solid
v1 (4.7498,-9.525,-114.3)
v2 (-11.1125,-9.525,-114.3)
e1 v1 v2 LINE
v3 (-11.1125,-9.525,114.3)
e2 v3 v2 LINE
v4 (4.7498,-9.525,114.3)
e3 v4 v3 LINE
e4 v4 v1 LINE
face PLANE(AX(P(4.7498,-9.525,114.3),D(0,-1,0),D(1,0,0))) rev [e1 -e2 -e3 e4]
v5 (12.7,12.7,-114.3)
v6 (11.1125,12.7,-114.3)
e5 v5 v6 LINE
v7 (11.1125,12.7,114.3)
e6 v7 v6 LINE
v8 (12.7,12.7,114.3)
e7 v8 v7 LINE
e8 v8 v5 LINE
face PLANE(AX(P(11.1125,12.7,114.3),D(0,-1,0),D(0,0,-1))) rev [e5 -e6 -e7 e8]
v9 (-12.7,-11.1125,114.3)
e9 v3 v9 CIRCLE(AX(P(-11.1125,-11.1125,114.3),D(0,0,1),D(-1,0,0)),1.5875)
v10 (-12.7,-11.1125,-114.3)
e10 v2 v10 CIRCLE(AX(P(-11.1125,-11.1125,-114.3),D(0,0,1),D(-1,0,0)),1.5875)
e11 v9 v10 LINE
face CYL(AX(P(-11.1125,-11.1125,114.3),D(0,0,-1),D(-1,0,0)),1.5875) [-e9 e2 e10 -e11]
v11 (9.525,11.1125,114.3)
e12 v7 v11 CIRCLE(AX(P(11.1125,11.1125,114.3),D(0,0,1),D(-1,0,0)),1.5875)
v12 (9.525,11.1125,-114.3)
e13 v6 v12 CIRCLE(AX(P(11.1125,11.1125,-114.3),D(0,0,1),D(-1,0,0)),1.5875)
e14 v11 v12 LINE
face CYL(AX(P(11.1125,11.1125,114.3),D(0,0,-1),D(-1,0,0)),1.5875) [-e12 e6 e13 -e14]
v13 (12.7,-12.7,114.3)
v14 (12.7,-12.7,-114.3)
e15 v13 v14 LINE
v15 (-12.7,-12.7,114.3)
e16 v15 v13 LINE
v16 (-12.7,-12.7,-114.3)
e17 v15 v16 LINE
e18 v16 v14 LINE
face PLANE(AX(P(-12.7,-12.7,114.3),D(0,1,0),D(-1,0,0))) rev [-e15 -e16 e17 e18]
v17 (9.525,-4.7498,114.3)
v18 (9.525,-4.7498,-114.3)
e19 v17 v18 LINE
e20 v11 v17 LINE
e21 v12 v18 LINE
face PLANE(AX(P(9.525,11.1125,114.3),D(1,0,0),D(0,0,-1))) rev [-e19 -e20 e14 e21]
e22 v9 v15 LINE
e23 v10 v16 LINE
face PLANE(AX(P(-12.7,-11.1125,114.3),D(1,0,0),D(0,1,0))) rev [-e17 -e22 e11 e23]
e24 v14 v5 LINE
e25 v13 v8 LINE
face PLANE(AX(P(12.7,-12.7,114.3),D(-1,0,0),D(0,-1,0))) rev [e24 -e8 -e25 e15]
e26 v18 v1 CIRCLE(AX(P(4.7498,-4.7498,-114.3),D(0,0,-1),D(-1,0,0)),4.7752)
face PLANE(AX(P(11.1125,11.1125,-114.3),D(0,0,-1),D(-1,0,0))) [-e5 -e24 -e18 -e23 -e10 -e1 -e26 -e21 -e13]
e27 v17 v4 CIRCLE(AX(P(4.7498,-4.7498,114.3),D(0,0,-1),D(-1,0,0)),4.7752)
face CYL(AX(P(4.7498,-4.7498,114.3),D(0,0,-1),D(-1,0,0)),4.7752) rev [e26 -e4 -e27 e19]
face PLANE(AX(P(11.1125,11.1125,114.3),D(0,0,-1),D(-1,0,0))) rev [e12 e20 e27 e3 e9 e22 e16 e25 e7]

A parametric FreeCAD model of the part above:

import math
import FreeCAD as App
import Part
import Sketcher

V = App.Vector
Q = App.Units.Quantity

doc = App.newDocument("Part")
body = doc.addObject("PartDesign::Body", "Body")

sketch1 = body.newObject("Sketcher::SketchObject", "Sketch")
sketch1.AttachmentSupport = (doc.getObject("XY_Plane"), [""])
sketch1.MapMode = "FlatFace"
sketch1.addGeometry([
    Part.LineSegment(V(-12.7, -12.7, 0), V(12.7, -12.7, 0)),
    Part.LineSegment(V(12.7, -12.7, 0), V(12.7, 12.7, 0)),
    Part.LineSegment(V(12.7, 12.7, 0), V(11.1, 12.7, 0)),
    Part.ArcOfCircle(Part.Circle(V(11.1, 11.1, 0), V(0, 0, 1), 1.6), math.radians(90), math.radians(180)),
    Part.LineSegment(V(9.5, 11.1, 0), V(9.5, -4.7, 0)),
    Part.ArcOfCircle(Part.Circle(V(4.7, -4.7, 0), V(0, 0, 1), 4.8), math.radians(-90), math.radians(0)),
    Part.LineSegment(V(4.7, -9.5, 0), V(-11.1, -9.5, 0)),
    Part.ArcOfCircle(Part.Circle(V(-11.1, -11.1, 0), V(0, 0, 1), 1.6), math.radians(90), math.radians(180)),
    Part.LineSegment(V(-12.7, -11.1, 0), V(-12.7, -12.7, 0)),
], False)
sketch1.addConstraint([
    Sketcher.Constraint("Coincident", 0, 2, 1, 1),
    Sketcher.Constraint("Coincident", 1, 2, 2, 1),
    Sketcher.Constraint("Tangent", 2, 2, 3, 1),
    Sketcher.Constraint("Tangent", 3, 2, 4, 1),
    Sketcher.Constraint("Tangent", 4, 2, 5, 2),
    Sketcher.Constraint("Tangent", 5, 1, 6, 1),
    Sketcher.Constraint("Tangent", 6, 2, 7, 1),
    Sketcher.Constraint("Tangent", 7, 2, 8, 1),
    Sketcher.Constraint("Coincident", 8, 2, 0, 1),
    Sketcher.Constraint("Horizontal", 0),
    Sketcher.Constraint("Vertical", 1),
    Sketcher.Constraint("Horizontal", 2),
    Sketcher.Constraint("Vertical", 4),
    Sketcher.Constraint("Horizontal", 6),
    Sketcher.Constraint("Vertical", 8),
    Sketcher.Constraint("Equal", 3, 7),
    Sketcher.Constraint("Symmetric", 3, 3, 7, 3, -1, 1),
    Sketcher.Constraint("Symmetric", 1, 2, 8, 2, -1, 1),
    Sketcher.Constraint("Equal", 0, 1),
    Sketcher.Constraint("DistanceX", 0, 1, 0, 2, Q("1 in")),
    Sketcher.Constraint("Radius", 3, Q("0.0625 in")),
    Sketcher.Constraint("Radius", 5, Q("0.188 in")),
])
pad1 = body.newObject("PartDesign::Pad", "Pad")
pad1.Profile = sketch1
pad1.Length = Q("9 in")
pad1.Midplane = True

doc.recompute()
